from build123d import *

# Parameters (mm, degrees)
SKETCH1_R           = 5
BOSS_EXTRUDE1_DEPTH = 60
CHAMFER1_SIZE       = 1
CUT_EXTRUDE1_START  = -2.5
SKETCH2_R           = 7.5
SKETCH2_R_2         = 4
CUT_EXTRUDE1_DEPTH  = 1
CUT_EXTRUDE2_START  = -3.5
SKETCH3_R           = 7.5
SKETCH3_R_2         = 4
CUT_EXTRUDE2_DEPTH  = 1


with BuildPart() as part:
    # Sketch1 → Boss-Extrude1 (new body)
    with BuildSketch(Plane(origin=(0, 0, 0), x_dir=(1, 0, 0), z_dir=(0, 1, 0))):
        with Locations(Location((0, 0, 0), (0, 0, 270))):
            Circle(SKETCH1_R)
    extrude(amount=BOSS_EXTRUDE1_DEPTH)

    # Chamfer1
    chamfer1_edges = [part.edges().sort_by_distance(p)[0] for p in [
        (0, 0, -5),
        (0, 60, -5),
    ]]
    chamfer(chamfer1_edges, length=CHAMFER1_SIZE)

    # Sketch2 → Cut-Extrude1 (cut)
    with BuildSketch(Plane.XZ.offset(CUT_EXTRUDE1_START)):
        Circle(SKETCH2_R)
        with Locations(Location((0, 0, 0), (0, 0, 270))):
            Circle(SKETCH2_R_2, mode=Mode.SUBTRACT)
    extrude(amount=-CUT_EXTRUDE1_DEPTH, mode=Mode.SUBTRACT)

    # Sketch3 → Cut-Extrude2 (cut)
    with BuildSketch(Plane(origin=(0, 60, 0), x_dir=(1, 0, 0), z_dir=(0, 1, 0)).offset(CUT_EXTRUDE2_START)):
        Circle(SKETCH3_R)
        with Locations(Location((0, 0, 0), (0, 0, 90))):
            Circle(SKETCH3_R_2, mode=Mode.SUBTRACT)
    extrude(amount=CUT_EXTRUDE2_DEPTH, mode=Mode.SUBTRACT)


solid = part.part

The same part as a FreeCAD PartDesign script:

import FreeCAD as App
import Part
import Sketcher
Q = App.Units.Quantity


def edges_at(feature, points):
    """Names of the edges that pass closest to the given points."""
    edges = feature.Shape.Edges
    near = lambda p: min(range(len(edges)), key=lambda i: edges[i].distToShape(Part.Vertex(*p))[0])
    return sorted({f"Edge{near(p) + 1}" for p in points})

doc = App.newDocument("Part")
body = doc.addObject("PartDesign::Body", "Body")

# Sketch on XZ plane
sketch1 = body.newObject("Sketcher::SketchObject", "Sketch")
sketch1.AttachmentSupport = (doc.getObject("XZ_Plane"), [""])
sketch1.MapMode = "FlatFace"
sketch1.addGeometry(Part.Circle(App.Vector(0, 0, 0), App.Vector(0, 0, 1), 5), False)
sketch1.addConstraint([
    Sketcher.Constraint("Coincident", 0, 3, -1, 1),
    Sketcher.Constraint("Diameter", 0, Q("10 mm")),
])
pad1 = body.newObject("PartDesign::Pad", "Pad")
pad1.Profile = sketch1
pad1.Length = 60
pad1.Reversed = True
doc.recompute()

chamfer = body.newObject("PartDesign::Chamfer", "Chamfer")
chamfer.Base = (pad1, edges_at(pad1, [(0, 0, -5), (0, 60, -5)]))
chamfer.Size = 1

# Sketch on XZ plane
sketch2 = body.newObject("Sketcher::SketchObject", "Sketch001")
sketch2.AttachmentSupport = (doc.getObject("XZ_Plane"), [""])
sketch2.MapMode = "FlatFace"
sketch2.AttachmentOffset = App.Placement(App.Vector(0, 0, -2.5), App.Rotation())
sketch2.addGeometry([
    Part.Circle(App.Vector(0, 0, 0), App.Vector(0, 0, 1), 7.5),
    Part.Circle(App.Vector(0, 0, 0), App.Vector(0, 0, 1), 4),
], False)
sketch2.addConstraint([
    Sketcher.Constraint("Coincident", 0, 3, -1, 1),
    Sketcher.Constraint("Coincident", 1, 3, -1, 1),
    Sketcher.Constraint("Diameter", 0, Q("15 mm")),
    Sketcher.Constraint("Diameter", 1, Q("8 mm")),
])
pocket1 = body.newObject("PartDesign::Pocket", "Pocket")
pocket1.Profile = sketch2
pocket1.Length = 1

# Sketch on XZ plane
sketch3 = body.newObject("Sketcher::SketchObject", "Sketch002")
sketch3.AttachmentSupport = (doc.getObject("XZ_Plane"), [""])
sketch3.MapMode = "FlatFace"
sketch3.AttachmentOffset = App.Placement(App.Vector(0, 0, -56.5), App.Rotation())
sketch3.addGeometry([
    Part.Circle(App.Vector(0, 0, 0), App.Vector(0, 0, 1), 7.5),
    Part.Circle(App.Vector(0, 0, 0), App.Vector(0, 0, 1), 4),
], False)
sketch3.addConstraint([
    Sketcher.Constraint("Coincident", 0, 3, -1, 1),
    Sketcher.Constraint("Coincident", 1, 3, -1, 1),
    Sketcher.Constraint("Diameter", 0, Q("15 mm")),
    Sketcher.Constraint("Diameter", 1, Q("8 mm")),
])
pocket2 = body.newObject("PartDesign::Pocket", "Pocket001")
pocket2.Profile = sketch3
pocket2.Length = 1

doc.recompute()
